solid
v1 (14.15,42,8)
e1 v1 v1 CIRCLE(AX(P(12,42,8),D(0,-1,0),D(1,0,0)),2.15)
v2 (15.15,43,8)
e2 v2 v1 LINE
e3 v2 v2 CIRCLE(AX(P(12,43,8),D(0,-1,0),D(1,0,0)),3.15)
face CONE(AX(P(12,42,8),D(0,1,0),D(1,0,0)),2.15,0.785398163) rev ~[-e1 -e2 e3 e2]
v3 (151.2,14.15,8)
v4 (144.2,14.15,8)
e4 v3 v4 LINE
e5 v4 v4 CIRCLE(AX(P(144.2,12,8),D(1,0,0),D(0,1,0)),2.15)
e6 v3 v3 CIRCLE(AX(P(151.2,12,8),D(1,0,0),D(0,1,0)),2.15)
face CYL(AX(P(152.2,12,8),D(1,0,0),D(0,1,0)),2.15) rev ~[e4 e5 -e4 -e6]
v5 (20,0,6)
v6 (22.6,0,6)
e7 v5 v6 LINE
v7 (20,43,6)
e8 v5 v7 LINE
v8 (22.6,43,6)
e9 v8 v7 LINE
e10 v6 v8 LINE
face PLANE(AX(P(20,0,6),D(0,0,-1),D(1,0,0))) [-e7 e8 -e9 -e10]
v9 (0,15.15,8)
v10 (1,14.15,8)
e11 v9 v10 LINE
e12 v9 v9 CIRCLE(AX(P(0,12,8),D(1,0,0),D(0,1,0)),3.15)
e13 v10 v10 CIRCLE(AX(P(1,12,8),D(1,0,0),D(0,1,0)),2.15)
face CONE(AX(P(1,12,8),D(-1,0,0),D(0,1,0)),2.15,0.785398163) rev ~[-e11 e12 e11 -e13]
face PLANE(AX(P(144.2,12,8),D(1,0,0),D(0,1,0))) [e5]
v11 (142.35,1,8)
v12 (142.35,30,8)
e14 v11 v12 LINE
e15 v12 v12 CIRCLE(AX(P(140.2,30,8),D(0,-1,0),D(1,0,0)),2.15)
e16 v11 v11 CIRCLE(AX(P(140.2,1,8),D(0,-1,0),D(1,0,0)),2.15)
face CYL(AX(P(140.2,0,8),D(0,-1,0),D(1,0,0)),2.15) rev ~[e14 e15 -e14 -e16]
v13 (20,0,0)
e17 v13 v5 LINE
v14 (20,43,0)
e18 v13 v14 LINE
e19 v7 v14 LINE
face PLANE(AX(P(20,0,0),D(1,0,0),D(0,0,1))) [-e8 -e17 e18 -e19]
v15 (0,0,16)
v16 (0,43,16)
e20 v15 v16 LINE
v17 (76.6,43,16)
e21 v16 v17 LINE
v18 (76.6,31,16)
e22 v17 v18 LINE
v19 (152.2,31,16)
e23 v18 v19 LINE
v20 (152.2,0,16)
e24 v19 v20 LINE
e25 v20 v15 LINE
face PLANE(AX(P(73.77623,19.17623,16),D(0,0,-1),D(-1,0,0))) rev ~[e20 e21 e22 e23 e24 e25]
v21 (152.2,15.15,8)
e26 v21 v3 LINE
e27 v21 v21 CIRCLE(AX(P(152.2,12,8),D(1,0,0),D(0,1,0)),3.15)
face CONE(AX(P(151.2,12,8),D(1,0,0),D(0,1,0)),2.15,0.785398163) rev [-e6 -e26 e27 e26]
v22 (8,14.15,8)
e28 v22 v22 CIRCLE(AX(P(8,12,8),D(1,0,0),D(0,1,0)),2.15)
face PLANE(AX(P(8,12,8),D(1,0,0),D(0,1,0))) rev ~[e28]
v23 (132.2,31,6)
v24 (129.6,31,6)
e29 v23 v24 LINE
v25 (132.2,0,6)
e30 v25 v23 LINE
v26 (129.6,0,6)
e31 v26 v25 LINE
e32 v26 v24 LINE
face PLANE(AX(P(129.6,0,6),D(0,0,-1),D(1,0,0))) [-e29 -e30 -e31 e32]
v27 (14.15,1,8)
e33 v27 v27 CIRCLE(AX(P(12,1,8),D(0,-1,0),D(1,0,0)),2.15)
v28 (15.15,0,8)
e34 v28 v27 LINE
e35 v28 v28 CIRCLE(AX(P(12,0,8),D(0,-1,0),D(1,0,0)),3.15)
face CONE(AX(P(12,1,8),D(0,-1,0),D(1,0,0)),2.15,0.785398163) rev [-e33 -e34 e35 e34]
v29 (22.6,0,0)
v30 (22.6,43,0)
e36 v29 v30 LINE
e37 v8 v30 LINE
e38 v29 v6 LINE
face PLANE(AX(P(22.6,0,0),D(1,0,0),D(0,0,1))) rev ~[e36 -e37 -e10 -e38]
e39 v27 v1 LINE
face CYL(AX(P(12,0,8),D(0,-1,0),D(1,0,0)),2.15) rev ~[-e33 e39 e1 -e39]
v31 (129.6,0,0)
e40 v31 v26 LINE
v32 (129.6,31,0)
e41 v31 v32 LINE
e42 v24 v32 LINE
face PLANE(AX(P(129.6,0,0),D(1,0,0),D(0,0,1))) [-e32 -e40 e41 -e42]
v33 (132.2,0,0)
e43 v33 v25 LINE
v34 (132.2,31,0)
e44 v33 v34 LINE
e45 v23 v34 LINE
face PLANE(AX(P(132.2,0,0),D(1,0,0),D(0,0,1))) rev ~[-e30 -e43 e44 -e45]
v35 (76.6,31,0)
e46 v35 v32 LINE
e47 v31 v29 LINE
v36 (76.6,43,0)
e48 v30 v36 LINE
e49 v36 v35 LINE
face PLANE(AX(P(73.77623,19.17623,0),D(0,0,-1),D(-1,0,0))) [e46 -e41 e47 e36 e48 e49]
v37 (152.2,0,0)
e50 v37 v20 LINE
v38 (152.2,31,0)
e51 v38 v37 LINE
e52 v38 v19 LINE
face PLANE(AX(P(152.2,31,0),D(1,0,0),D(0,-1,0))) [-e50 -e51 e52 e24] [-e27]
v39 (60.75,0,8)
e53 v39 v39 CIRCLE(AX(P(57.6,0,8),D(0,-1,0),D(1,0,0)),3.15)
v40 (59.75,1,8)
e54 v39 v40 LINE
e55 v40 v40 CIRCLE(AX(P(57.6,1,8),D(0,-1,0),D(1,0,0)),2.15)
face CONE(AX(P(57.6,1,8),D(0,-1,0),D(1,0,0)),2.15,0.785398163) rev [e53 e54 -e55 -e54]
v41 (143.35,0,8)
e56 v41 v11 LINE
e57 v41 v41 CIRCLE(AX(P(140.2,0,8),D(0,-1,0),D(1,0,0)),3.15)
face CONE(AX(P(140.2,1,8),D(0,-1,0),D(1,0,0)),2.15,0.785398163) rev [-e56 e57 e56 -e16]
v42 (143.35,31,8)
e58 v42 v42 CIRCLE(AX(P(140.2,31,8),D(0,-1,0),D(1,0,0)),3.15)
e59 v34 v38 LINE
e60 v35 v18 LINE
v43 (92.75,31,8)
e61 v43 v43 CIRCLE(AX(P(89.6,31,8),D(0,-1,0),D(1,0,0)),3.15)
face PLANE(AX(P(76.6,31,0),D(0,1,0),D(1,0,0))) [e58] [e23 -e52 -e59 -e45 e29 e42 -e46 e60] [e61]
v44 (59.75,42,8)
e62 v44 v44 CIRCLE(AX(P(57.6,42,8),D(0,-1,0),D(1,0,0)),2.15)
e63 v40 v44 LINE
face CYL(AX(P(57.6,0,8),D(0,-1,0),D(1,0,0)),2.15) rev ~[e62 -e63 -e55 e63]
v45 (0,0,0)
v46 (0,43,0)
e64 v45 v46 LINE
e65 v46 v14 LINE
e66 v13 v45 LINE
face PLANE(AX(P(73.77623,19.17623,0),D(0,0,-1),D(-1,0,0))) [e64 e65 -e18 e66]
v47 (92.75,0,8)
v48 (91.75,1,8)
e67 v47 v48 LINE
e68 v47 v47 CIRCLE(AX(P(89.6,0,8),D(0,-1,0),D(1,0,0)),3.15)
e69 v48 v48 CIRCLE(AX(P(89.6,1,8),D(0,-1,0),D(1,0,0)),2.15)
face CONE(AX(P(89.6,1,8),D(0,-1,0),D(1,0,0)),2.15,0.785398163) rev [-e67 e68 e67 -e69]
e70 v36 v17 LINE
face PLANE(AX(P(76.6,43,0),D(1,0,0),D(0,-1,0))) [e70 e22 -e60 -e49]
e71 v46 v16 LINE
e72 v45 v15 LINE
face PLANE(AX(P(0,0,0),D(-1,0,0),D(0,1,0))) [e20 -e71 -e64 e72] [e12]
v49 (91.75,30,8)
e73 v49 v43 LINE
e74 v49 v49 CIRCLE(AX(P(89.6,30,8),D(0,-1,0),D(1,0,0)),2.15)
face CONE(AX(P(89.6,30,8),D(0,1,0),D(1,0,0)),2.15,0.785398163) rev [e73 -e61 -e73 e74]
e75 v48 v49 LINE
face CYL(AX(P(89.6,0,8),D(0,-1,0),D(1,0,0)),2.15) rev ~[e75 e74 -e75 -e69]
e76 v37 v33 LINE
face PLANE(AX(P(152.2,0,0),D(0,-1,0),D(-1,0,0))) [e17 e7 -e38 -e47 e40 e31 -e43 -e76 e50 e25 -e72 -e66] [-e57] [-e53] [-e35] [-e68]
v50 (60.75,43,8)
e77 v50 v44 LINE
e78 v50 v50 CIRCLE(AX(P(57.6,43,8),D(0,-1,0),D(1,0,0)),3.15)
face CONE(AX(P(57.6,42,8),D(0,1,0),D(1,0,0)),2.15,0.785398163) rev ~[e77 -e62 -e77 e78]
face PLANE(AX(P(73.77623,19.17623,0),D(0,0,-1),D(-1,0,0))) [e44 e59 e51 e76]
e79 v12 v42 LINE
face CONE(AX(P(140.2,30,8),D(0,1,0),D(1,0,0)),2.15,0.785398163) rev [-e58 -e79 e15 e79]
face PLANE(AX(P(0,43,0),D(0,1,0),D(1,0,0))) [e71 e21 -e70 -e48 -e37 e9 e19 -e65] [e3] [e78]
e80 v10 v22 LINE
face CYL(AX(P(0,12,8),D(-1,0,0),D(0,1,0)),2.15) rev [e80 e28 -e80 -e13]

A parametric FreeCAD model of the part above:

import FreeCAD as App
import Part
import Sketcher
from FreeCAD import Vector


def edges_at(feature, points):
    """Names of the edges that pass closest to the given points."""
    edges = feature.Shape.Edges
    near = lambda p: min(range(len(edges)), key=lambda i: edges[i].distToShape(Part.Vertex(*p))[0])
    return sorted({f"Edge{near(p) + 1}" for p in points})


def add_polygon(sketch, points):
    """Adds a closed chain of lines whose ends are joined by coincident constraints."""
    first, n = sketch.GeometryCount, len(points)
    for a, b in zip(points, points[1:] + points[:1]):
        sketch.addGeometry(Part.LineSegment(App.Vector(*a, 0), App.Vector(*b, 0)), False)
    for i in range(n):
        sketch.addConstraint(Sketcher.Constraint("Coincident", first + i, 2, first + (i + 1) % n, 1))

doc = App.newDocument("Part")
body = doc.addObject("PartDesign::Body", "Body")

sketch1 = doc.addObject("Sketcher::SketchObject", "Sketch")
body.addObject(sketch1)
sketch1.AttachmentSupport = (doc.XY_Plane, [""])
sketch1.MapMode = "FlatFace"
add_polygon(sketch1, [(0, 43), (0, 0), (152, 0), (152, 31), (77, 31), (77, 43)])
sketch1.addConstraint([
    Sketcher.Constraint("Vertical", 0),
    Sketcher.Constraint("Horizontal", 1),
    Sketcher.Constraint("Vertical", 2),
    Sketcher.Constraint("Horizontal", 3),
    Sketcher.Constraint("Vertical", 4),
    Sketcher.Constraint("Horizontal", 5),
    Sketcher.Constraint("Coincident", 0, 2, -1, 1),
    Sketcher.Constraint("DistanceY", 0, 2, 0, 1, 43.0),
    Sketcher.Constraint("DistanceY", 2, 1, 2, 2, 31.0),
    Sketcher.Constraint("DistanceX", 1, 1, 1, 2, 152.2),
    Sketcher.Constraint("DistanceX", 3, 2, 3, 1, 75.6),
])
pad1 = doc.addObject("PartDesign::Pad", "Pad")
body.addObject(pad1)
pad1.Profile = sketch1
pad1.Length = 16

sketch2 = doc.addObject("Sketcher::SketchObject", "Sketch001")
body.addObject(sketch2)
sketch2.AttachmentSupport = (doc.XZ_Plane, [""])
sketch2.MapMode = "FlatFace"
sketch2.addGeometry(Part.Circle(Vector(12, 8, 0), Vector(0, 0, 1), 2.1), False)
sketch2.addGeometry(Part.Circle(Vector(89.6, 8, 0), Vector(0, 0, 1), 2.1), False)
sketch2.addGeometry(Part.Circle(Vector(140.2, 8, 0), Vector(0, 0, 1), 2.1), False)
sketch2.addGeometry(Part.Circle(Vector(57.6, 8, 0), Vector(0, 0, 1), 2.1), False)
add_polygon(sketch2, [(20, 6), (20, 0), (22.6, 0), (22.6, 6)])
add_polygon(sketch2, [(129.6, 6), (129.6, 0), (132.2, 0), (132.2, 6)])
sketch2.addConstraint([
    Sketcher.Constraint("Vertical", 4),
    Sketcher.Constraint("Horizontal", 5),
    Sketcher.Constraint("Vertical", 6),
    Sketcher.Constraint("Horizontal", 7),
    Sketcher.Constraint("Vertical", 8),
    Sketcher.Constraint("Horizontal", 9),
    Sketcher.Constraint("Vertical", 10),
    Sketcher.Constraint("Horizontal", 11),
    Sketcher.Constraint("Equal", 0, 1),
    Sketcher.Constraint("Equal", 1, 2),
    Sketcher.Constraint("Equal", 2, 3),
    Sketcher.Constraint("PointOnObject", 4, 2, -1),
    Sketcher.Constraint("PointOnObject", 8, 2, -1),
    Sketcher.Constraint("Horizontal", 0, 3, 1, 3),
    Sketcher.Constraint("Horizontal", 1, 3, 2, 3),
    Sketcher.Constraint("Horizontal", 2, 3, 3, 3),
    Sketcher.Constraint("Horizontal", 7, 2, 10, 2),
    Sketcher.Constraint("Equal", 7, 9),
    Sketcher.Constraint("Diameter", 0, 4.3),
    Sketcher.Constraint("DistanceY", 4, 2, 4, 1, 6.0),
    Sketcher.Constraint("DistanceX", 5, 1, 5, 2, 2.6),
    Sketcher.Constraint("DistanceX", -1, 1, 0, 3, 12.0),
    Sketcher.Constraint("DistanceY", -1, 1, 0, 3, 8.0),
    Sketcher.Constraint("DistanceX", -1, 1, 4, 2, 20.0),
    Sketcher.Constraint("DistanceX", 3, 3, 1, 3, 32.0),
    Sketcher.Constraint("DistanceX", 5, 2, 3, 3, 35.0),
    Sketcher.Constraint("DistanceX", 1, 3, 8, 2, 40.0),
    Sketcher.Constraint("DistanceX", 9, 2, 2, 3, 8.0),
])
pocket1 = doc.addObject("PartDesign::Pocket", "Pocket")
body.addObject(pocket1)
pocket1.Profile = sketch2
pocket1.Type = "ThroughAll"

sketch3 = doc.addObject("Sketcher::SketchObject", "Sketch002")
body.addObject(sketch3)
sketch3.AttachmentSupport = (doc.YZ_Plane, [""])
sketch3.MapMode = "FlatFace"
sketch3.addGeometry(Part.Circle(Vector(12, 8, 0), Vector(0, 0, 1), 2.1), False)
sketch3.addConstraint([
    Sketcher.Constraint("Diameter", 0, 4.3),
    Sketcher.Constraint("DistanceX", -1, 1, 0, 3, 12.0),
    Sketcher.Constraint("DistanceY", -1, 1, 0, 3, 8.0),
])
pocket2 = doc.addObject("PartDesign::Pocket", "Pocket001")
body.addObject(pocket2)
pocket2.Profile = sketch3
pocket2.Length = 8
pocket2.Reversed = True

sketch4 = doc.addObject("Sketcher::SketchObject", "Sketch003")
body.addObject(sketch4)
sketch4.AttachmentSupport = (doc.YZ_Plane, [""])
sketch4.MapMode = "FlatFace"
sketch4.AttachmentOffset = App.Placement(Vector(0, 0, 152.2), App.Rotation())
sketch4.addGeometry(Part.Circle(Vector(12, 8, 0), Vector(0, 0, 1), 2.1), False)
sketch4.addConstraint([
    Sketcher.Constraint("Diameter", 0, 4.3),
    Sketcher.Constraint("DistanceX", -1, 1, 0, 3, 12.0),
    Sketcher.Constraint("DistanceY", -1, 1, 0, 3, 8.0),
])
pocket3 = doc.addObject("PartDesign::Pocket", "Pocket002")
body.addObject(pocket3)
pocket3.Profile = sketch4
pocket3.Length = 8
doc.recompute()

chamfer = doc.addObject("PartDesign::Chamfer", "Chamfer")
body.addObject(chamfer)
chamfer.Base = (pocket3, edges_at(pocket3, [
    (0, 9.85, 8),
    (9.85, 0, 8),
    (55.45, 0, 8),
    (87.45, 0, 8),
    (138.05, 0, 8),
    (152.2, 9.85, 8),
    (138.05, 31, 8),
    (87.45, 31, 8),
    (55.45, 43, 8),
    (9.85, 43, 8),
]))
chamfer.Size = 1

doc.recompute()
